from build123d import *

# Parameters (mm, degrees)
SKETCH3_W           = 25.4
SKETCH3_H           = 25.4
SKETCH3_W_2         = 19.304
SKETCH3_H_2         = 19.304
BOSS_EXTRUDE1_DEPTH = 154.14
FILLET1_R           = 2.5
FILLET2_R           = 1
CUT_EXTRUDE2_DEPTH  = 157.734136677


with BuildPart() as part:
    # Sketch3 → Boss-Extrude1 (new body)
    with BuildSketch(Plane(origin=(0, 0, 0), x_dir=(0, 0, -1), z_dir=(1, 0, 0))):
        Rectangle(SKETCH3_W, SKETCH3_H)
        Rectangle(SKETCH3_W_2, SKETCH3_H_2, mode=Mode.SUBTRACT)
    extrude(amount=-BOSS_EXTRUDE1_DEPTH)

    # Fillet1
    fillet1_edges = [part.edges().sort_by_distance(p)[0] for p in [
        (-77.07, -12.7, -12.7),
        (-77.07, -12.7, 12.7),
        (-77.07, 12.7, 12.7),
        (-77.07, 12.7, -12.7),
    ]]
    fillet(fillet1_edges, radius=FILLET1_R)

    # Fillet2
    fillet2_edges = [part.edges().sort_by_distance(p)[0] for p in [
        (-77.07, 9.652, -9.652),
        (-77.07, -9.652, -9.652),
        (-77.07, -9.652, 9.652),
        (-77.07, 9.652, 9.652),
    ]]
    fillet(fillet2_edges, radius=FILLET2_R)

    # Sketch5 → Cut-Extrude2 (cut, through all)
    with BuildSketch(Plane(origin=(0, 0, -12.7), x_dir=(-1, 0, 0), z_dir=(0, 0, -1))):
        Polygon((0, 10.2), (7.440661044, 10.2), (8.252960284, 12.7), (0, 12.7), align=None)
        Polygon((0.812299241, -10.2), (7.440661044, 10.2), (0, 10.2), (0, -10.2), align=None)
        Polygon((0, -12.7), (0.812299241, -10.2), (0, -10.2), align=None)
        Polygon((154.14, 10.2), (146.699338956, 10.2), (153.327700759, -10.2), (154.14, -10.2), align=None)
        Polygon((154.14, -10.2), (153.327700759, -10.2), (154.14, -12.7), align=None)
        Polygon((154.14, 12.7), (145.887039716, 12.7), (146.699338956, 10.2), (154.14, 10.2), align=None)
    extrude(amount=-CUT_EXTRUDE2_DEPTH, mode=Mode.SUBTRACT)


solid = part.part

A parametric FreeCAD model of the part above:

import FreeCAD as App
import Part
import Sketcher

V = App.Vector
Q = App.Units.Quantity


def edges_at(feature, points):
    """Names of the edges that pass closest to the given points."""
    edges = feature.Shape.Edges
    near = lambda p: min(range(len(edges)), key=lambda i: edges[i].distToShape(Part.Vertex(*p))[0])
    return sorted({f"Edge{near(p) + 1}" for p in points})

doc = App.newDocument("Part")
body = doc.addObject("PartDesign::Body", "Body")

sketch1 = body.newObject("Sketcher::SketchObject", "Sketch")
sketch1.AttachmentSupport = (doc.getObject("YZ_Plane"), [""])
sketch1.MapMode = "FlatFace"
sketch1.addGeometry(Part.LineSegment(V(12.7, 12.7, 0), V(-12.7, 12.7, 0)), False)
sketch1.addGeometry(Part.LineSegment(V(-12.7, 12.7, 0), V(-12.7, -12.7, 0)), False)
sketch1.addGeometry(Part.LineSegment(V(-12.7, -12.7, 0), V(12.7, -12.7, 0)), False)
sketch1.addGeometry(Part.LineSegment(V(12.7, -12.7, 0), V(12.7, 12.7, 0)), False)
sketch1.addGeometry(Part.LineSegment(V(-9.652, -9.652, 0), V(-9.652, 9.652, 0)), False)
sketch1.addGeometry(Part.LineSegment(V(-9.652, 9.652, 0), V(9.652, 9.652, 0)), False)
sketch1.addGeometry(Part.LineSegment(V(9.652, 9.652, 0), V(9.652, -9.652, 0)), False)
sketch1.addGeometry(Part.LineSegment(V(9.652, -9.652, 0), V(-9.652, -9.652, 0)), False)
sketch1.addConstraint(Sketcher.Constraint("Coincident", 0, 2, 1, 1))
sketch1.addConstraint(Sketcher.Constraint("Coincident", 1, 2, 2, 1))
sketch1.addConstraint(Sketcher.Constraint("Coincident", 2, 2, 3, 1))
sketch1.addConstraint(Sketcher.Constraint("Coincident", 3, 2, 0, 1))
sketch1.addConstraint(Sketcher.Constraint("Coincident", 4, 2, 5, 1))
sketch1.addConstraint(Sketcher.Constraint("Coincident", 5, 2, 6, 1))
sketch1.addConstraint(Sketcher.Constraint("Coincident", 6, 2, 7, 1))
sketch1.addConstraint(Sketcher.Constraint("Coincident", 7, 2, 4, 1))
sketch1.addConstraint(Sketcher.Constraint("Horizontal", 0))
sketch1.addConstraint(Sketcher.Constraint("Vertical", 1))
sketch1.addConstraint(Sketcher.Constraint("Horizontal", 2))
sketch1.addConstraint(Sketcher.Constraint("Vertical", 3))
sketch1.addConstraint(Sketcher.Constraint("Vertical", 4))
sketch1.addConstraint(Sketcher.Constraint("Horizontal", 5))
sketch1.addConstraint(Sketcher.Constraint("Vertical", 6))
sketch1.addConstraint(Sketcher.Constraint("Horizontal", 7))
sketch1.addConstraint(Sketcher.Constraint("Symmetric", 0, 2, 2, 2, -1, 1))
sketch1.addConstraint(Sketcher.Constraint("Symmetric", 4, 2, 6, 2, -1, 1))
sketch1.addConstraint(Sketcher.Constraint("Equal", 2, 1))
sketch1.addConstraint(Sketcher.Constraint("Equal", 7, 4))
sketch1.addConstraint(Sketcher.Constraint("DistanceX", 0, 2, 0, 1, 25.4))
sketch1.addConstraint(Sketcher.Constraint("DistanceX", 5, 1, 5, 2, 19.304))
pad1 = body.newObject("PartDesign::Pad", "Pad")
pad1.Profile = sketch1
pad1.Length = 154.14
pad1.Reversed = True
doc.recompute()

fillet = body.newObject("PartDesign::Fillet", "Fillet")
fillet.Base = (pad1, edges_at(pad1, [
    (-77.07, -12.7, -12.7),
    (-77.07, -12.7, 12.7),
    (-77.07, 12.7, 12.7),
    (-77.07, 12.7, -12.7),
]))
fillet.Radius = 2.5
doc.recompute()

fillet2 = body.newObject("PartDesign::Fillet", "Fillet001")
fillet2.Base = (fillet, edges_at(fillet, [
    (-77.07, 9.652, -9.652),
    (-77.07, -9.652, -9.652),
    (-77.07, -9.652, 9.652),
    (-77.07, 9.652, 9.652),
]))
fillet2.Radius = 1

sketch2 = body.newObject("Sketcher::SketchObject", "Sketch001")
sketch2.AttachmentSupport = (doc.getObject("XY_Plane"), [""])
sketch2.MapMode = "FlatFace"
sketch2.AttachmentOffset = App.Placement(V(0, 0, -12.7), App.Rotation())
sketch2.addGeometry(Part.LineSegment(V(-7.440661, 10.2, 0), V(-8.25296, 12.7, 0)), False)
sketch2.addGeometry(Part.LineSegment(V(-8.25296, 12.7, 0), V(0, 12.7, 0)), False)
sketch2.addGeometry(Part.LineSegment(V(0, 12.7, 0), V(0, -12.7, 0)), False)
sketch2.addGeometry(Part.LineSegment(V(0, -12.7, 0), V(-0.812299, -10.2, 0)), False)
sketch2.addGeometry(Part.LineSegment(V(-0.812299, -10.2, 0), V(-7.440661, 10.2, 0)), False)
sketch2.addGeometry(Part.LineSegment(V(-146.699339, 10.2, 0), V(-153.327701, -10.2, 0)), False)
sketch2.addGeometry(Part.LineSegment(V(-153.327701, -10.2, 0), V(-154.14, -12.7, 0)), False)
sketch2.addGeometry(Part.LineSegment(V(-154.14, -12.7, 0), V(-154.14, 12.7, 0)), False)
sketch2.addGeometry(Part.LineSegment(V(-154.14, 12.7, 0), V(-145.88704, 12.7, 0)), False)
sketch2.addGeometry(Part.LineSegment(V(-145.88704, 12.7, 0), V(-146.699339, 10.2, 0)), False)
sketch2.addConstraint(Sketcher.Constraint("Coincident", 0, 2, 1, 1))
sketch2.addConstraint(Sketcher.Constraint("Coincident", 1, 2, 2, 1))
sketch2.addConstraint(Sketcher.Constraint("Coincident", 2, 2, 3, 1))
sketch2.addConstraint(Sketcher.Constraint("Coincident", 3, 2, 4, 1))
sketch2.addConstraint(Sketcher.Constraint("Coincident", 4, 2, 0, 1))
sketch2.addConstraint(Sketcher.Constraint("Coincident", 5, 2, 6, 1))
sketch2.addConstraint(Sketcher.Constraint("Coincident", 6, 2, 7, 1))
sketch2.addConstraint(Sketcher.Constraint("Coincident", 7, 2, 8, 1))
sketch2.addConstraint(Sketcher.Constraint("Coincident", 8, 2, 9, 1))
sketch2.addConstraint(Sketcher.Constraint("Coincident", 9, 2, 5, 1))
sketch2.addConstraint(Sketcher.Constraint("Horizontal", 1))
sketch2.addConstraint(Sketcher.Constraint("Vertical", 2))
sketch2.addConstraint(Sketcher.Constraint("Vertical", 7))
sketch2.addConstraint(Sketcher.Constraint("Horizontal", 8))
sketch2.addConstraint(Sketcher.Constraint("Symmetric", 1, 2, 2, 2, -1, 1))
sketch2.addConstraint(Sketcher.Constraint("Parallel", 0, 3))
sketch2.addConstraint(Sketcher.Constraint("Parallel", 3, 4))
sketch2.addConstraint(Sketcher.Constraint("Parallel", 5, 6))
sketch2.addConstraint(Sketcher.Constraint("Parallel", 6, 9))
sketch2.addConstraint(Sketcher.Constraint("Horizontal", 3, 2, 5, 2))
sketch2.addConstraint(Sketcher.Constraint("Horizontal", 2, 2, 6, 2))
sketch2.addConstraint(Sketcher.Constraint("Horizontal", 1, 2, 7, 2))
sketch2.addConstraint(Sketcher.Constraint("Horizontal", 4, 2, 9, 2))
sketch2.addConstraint(Sketcher.Constraint("Equal", 1, 8))
sketch2.addConstraint(Sketcher.Constraint("Equal", 0, 3))
sketch2.addConstraint(Sketcher.Constraint("Angle", 0, Q("108 deg")))
sketch2.addConstraint(Sketcher.Constraint("DistanceY", 2, 2, 2, 1, 25.4))
sketch2.addConstraint(Sketcher.Constraint("DistanceY", 3, 2, -1, 1, 10.2))
sketch2.addConstraint(Sketcher.Constraint("DistanceX", 6, 2, -1, 1, 154.14))
pocket1 = body.newObject("PartDesign::Pocket", "Pocket")
pocket1.Profile = sketch2
pocket1.Type = "ThroughAll"
pocket1.Reversed = True

doc.recompute()
